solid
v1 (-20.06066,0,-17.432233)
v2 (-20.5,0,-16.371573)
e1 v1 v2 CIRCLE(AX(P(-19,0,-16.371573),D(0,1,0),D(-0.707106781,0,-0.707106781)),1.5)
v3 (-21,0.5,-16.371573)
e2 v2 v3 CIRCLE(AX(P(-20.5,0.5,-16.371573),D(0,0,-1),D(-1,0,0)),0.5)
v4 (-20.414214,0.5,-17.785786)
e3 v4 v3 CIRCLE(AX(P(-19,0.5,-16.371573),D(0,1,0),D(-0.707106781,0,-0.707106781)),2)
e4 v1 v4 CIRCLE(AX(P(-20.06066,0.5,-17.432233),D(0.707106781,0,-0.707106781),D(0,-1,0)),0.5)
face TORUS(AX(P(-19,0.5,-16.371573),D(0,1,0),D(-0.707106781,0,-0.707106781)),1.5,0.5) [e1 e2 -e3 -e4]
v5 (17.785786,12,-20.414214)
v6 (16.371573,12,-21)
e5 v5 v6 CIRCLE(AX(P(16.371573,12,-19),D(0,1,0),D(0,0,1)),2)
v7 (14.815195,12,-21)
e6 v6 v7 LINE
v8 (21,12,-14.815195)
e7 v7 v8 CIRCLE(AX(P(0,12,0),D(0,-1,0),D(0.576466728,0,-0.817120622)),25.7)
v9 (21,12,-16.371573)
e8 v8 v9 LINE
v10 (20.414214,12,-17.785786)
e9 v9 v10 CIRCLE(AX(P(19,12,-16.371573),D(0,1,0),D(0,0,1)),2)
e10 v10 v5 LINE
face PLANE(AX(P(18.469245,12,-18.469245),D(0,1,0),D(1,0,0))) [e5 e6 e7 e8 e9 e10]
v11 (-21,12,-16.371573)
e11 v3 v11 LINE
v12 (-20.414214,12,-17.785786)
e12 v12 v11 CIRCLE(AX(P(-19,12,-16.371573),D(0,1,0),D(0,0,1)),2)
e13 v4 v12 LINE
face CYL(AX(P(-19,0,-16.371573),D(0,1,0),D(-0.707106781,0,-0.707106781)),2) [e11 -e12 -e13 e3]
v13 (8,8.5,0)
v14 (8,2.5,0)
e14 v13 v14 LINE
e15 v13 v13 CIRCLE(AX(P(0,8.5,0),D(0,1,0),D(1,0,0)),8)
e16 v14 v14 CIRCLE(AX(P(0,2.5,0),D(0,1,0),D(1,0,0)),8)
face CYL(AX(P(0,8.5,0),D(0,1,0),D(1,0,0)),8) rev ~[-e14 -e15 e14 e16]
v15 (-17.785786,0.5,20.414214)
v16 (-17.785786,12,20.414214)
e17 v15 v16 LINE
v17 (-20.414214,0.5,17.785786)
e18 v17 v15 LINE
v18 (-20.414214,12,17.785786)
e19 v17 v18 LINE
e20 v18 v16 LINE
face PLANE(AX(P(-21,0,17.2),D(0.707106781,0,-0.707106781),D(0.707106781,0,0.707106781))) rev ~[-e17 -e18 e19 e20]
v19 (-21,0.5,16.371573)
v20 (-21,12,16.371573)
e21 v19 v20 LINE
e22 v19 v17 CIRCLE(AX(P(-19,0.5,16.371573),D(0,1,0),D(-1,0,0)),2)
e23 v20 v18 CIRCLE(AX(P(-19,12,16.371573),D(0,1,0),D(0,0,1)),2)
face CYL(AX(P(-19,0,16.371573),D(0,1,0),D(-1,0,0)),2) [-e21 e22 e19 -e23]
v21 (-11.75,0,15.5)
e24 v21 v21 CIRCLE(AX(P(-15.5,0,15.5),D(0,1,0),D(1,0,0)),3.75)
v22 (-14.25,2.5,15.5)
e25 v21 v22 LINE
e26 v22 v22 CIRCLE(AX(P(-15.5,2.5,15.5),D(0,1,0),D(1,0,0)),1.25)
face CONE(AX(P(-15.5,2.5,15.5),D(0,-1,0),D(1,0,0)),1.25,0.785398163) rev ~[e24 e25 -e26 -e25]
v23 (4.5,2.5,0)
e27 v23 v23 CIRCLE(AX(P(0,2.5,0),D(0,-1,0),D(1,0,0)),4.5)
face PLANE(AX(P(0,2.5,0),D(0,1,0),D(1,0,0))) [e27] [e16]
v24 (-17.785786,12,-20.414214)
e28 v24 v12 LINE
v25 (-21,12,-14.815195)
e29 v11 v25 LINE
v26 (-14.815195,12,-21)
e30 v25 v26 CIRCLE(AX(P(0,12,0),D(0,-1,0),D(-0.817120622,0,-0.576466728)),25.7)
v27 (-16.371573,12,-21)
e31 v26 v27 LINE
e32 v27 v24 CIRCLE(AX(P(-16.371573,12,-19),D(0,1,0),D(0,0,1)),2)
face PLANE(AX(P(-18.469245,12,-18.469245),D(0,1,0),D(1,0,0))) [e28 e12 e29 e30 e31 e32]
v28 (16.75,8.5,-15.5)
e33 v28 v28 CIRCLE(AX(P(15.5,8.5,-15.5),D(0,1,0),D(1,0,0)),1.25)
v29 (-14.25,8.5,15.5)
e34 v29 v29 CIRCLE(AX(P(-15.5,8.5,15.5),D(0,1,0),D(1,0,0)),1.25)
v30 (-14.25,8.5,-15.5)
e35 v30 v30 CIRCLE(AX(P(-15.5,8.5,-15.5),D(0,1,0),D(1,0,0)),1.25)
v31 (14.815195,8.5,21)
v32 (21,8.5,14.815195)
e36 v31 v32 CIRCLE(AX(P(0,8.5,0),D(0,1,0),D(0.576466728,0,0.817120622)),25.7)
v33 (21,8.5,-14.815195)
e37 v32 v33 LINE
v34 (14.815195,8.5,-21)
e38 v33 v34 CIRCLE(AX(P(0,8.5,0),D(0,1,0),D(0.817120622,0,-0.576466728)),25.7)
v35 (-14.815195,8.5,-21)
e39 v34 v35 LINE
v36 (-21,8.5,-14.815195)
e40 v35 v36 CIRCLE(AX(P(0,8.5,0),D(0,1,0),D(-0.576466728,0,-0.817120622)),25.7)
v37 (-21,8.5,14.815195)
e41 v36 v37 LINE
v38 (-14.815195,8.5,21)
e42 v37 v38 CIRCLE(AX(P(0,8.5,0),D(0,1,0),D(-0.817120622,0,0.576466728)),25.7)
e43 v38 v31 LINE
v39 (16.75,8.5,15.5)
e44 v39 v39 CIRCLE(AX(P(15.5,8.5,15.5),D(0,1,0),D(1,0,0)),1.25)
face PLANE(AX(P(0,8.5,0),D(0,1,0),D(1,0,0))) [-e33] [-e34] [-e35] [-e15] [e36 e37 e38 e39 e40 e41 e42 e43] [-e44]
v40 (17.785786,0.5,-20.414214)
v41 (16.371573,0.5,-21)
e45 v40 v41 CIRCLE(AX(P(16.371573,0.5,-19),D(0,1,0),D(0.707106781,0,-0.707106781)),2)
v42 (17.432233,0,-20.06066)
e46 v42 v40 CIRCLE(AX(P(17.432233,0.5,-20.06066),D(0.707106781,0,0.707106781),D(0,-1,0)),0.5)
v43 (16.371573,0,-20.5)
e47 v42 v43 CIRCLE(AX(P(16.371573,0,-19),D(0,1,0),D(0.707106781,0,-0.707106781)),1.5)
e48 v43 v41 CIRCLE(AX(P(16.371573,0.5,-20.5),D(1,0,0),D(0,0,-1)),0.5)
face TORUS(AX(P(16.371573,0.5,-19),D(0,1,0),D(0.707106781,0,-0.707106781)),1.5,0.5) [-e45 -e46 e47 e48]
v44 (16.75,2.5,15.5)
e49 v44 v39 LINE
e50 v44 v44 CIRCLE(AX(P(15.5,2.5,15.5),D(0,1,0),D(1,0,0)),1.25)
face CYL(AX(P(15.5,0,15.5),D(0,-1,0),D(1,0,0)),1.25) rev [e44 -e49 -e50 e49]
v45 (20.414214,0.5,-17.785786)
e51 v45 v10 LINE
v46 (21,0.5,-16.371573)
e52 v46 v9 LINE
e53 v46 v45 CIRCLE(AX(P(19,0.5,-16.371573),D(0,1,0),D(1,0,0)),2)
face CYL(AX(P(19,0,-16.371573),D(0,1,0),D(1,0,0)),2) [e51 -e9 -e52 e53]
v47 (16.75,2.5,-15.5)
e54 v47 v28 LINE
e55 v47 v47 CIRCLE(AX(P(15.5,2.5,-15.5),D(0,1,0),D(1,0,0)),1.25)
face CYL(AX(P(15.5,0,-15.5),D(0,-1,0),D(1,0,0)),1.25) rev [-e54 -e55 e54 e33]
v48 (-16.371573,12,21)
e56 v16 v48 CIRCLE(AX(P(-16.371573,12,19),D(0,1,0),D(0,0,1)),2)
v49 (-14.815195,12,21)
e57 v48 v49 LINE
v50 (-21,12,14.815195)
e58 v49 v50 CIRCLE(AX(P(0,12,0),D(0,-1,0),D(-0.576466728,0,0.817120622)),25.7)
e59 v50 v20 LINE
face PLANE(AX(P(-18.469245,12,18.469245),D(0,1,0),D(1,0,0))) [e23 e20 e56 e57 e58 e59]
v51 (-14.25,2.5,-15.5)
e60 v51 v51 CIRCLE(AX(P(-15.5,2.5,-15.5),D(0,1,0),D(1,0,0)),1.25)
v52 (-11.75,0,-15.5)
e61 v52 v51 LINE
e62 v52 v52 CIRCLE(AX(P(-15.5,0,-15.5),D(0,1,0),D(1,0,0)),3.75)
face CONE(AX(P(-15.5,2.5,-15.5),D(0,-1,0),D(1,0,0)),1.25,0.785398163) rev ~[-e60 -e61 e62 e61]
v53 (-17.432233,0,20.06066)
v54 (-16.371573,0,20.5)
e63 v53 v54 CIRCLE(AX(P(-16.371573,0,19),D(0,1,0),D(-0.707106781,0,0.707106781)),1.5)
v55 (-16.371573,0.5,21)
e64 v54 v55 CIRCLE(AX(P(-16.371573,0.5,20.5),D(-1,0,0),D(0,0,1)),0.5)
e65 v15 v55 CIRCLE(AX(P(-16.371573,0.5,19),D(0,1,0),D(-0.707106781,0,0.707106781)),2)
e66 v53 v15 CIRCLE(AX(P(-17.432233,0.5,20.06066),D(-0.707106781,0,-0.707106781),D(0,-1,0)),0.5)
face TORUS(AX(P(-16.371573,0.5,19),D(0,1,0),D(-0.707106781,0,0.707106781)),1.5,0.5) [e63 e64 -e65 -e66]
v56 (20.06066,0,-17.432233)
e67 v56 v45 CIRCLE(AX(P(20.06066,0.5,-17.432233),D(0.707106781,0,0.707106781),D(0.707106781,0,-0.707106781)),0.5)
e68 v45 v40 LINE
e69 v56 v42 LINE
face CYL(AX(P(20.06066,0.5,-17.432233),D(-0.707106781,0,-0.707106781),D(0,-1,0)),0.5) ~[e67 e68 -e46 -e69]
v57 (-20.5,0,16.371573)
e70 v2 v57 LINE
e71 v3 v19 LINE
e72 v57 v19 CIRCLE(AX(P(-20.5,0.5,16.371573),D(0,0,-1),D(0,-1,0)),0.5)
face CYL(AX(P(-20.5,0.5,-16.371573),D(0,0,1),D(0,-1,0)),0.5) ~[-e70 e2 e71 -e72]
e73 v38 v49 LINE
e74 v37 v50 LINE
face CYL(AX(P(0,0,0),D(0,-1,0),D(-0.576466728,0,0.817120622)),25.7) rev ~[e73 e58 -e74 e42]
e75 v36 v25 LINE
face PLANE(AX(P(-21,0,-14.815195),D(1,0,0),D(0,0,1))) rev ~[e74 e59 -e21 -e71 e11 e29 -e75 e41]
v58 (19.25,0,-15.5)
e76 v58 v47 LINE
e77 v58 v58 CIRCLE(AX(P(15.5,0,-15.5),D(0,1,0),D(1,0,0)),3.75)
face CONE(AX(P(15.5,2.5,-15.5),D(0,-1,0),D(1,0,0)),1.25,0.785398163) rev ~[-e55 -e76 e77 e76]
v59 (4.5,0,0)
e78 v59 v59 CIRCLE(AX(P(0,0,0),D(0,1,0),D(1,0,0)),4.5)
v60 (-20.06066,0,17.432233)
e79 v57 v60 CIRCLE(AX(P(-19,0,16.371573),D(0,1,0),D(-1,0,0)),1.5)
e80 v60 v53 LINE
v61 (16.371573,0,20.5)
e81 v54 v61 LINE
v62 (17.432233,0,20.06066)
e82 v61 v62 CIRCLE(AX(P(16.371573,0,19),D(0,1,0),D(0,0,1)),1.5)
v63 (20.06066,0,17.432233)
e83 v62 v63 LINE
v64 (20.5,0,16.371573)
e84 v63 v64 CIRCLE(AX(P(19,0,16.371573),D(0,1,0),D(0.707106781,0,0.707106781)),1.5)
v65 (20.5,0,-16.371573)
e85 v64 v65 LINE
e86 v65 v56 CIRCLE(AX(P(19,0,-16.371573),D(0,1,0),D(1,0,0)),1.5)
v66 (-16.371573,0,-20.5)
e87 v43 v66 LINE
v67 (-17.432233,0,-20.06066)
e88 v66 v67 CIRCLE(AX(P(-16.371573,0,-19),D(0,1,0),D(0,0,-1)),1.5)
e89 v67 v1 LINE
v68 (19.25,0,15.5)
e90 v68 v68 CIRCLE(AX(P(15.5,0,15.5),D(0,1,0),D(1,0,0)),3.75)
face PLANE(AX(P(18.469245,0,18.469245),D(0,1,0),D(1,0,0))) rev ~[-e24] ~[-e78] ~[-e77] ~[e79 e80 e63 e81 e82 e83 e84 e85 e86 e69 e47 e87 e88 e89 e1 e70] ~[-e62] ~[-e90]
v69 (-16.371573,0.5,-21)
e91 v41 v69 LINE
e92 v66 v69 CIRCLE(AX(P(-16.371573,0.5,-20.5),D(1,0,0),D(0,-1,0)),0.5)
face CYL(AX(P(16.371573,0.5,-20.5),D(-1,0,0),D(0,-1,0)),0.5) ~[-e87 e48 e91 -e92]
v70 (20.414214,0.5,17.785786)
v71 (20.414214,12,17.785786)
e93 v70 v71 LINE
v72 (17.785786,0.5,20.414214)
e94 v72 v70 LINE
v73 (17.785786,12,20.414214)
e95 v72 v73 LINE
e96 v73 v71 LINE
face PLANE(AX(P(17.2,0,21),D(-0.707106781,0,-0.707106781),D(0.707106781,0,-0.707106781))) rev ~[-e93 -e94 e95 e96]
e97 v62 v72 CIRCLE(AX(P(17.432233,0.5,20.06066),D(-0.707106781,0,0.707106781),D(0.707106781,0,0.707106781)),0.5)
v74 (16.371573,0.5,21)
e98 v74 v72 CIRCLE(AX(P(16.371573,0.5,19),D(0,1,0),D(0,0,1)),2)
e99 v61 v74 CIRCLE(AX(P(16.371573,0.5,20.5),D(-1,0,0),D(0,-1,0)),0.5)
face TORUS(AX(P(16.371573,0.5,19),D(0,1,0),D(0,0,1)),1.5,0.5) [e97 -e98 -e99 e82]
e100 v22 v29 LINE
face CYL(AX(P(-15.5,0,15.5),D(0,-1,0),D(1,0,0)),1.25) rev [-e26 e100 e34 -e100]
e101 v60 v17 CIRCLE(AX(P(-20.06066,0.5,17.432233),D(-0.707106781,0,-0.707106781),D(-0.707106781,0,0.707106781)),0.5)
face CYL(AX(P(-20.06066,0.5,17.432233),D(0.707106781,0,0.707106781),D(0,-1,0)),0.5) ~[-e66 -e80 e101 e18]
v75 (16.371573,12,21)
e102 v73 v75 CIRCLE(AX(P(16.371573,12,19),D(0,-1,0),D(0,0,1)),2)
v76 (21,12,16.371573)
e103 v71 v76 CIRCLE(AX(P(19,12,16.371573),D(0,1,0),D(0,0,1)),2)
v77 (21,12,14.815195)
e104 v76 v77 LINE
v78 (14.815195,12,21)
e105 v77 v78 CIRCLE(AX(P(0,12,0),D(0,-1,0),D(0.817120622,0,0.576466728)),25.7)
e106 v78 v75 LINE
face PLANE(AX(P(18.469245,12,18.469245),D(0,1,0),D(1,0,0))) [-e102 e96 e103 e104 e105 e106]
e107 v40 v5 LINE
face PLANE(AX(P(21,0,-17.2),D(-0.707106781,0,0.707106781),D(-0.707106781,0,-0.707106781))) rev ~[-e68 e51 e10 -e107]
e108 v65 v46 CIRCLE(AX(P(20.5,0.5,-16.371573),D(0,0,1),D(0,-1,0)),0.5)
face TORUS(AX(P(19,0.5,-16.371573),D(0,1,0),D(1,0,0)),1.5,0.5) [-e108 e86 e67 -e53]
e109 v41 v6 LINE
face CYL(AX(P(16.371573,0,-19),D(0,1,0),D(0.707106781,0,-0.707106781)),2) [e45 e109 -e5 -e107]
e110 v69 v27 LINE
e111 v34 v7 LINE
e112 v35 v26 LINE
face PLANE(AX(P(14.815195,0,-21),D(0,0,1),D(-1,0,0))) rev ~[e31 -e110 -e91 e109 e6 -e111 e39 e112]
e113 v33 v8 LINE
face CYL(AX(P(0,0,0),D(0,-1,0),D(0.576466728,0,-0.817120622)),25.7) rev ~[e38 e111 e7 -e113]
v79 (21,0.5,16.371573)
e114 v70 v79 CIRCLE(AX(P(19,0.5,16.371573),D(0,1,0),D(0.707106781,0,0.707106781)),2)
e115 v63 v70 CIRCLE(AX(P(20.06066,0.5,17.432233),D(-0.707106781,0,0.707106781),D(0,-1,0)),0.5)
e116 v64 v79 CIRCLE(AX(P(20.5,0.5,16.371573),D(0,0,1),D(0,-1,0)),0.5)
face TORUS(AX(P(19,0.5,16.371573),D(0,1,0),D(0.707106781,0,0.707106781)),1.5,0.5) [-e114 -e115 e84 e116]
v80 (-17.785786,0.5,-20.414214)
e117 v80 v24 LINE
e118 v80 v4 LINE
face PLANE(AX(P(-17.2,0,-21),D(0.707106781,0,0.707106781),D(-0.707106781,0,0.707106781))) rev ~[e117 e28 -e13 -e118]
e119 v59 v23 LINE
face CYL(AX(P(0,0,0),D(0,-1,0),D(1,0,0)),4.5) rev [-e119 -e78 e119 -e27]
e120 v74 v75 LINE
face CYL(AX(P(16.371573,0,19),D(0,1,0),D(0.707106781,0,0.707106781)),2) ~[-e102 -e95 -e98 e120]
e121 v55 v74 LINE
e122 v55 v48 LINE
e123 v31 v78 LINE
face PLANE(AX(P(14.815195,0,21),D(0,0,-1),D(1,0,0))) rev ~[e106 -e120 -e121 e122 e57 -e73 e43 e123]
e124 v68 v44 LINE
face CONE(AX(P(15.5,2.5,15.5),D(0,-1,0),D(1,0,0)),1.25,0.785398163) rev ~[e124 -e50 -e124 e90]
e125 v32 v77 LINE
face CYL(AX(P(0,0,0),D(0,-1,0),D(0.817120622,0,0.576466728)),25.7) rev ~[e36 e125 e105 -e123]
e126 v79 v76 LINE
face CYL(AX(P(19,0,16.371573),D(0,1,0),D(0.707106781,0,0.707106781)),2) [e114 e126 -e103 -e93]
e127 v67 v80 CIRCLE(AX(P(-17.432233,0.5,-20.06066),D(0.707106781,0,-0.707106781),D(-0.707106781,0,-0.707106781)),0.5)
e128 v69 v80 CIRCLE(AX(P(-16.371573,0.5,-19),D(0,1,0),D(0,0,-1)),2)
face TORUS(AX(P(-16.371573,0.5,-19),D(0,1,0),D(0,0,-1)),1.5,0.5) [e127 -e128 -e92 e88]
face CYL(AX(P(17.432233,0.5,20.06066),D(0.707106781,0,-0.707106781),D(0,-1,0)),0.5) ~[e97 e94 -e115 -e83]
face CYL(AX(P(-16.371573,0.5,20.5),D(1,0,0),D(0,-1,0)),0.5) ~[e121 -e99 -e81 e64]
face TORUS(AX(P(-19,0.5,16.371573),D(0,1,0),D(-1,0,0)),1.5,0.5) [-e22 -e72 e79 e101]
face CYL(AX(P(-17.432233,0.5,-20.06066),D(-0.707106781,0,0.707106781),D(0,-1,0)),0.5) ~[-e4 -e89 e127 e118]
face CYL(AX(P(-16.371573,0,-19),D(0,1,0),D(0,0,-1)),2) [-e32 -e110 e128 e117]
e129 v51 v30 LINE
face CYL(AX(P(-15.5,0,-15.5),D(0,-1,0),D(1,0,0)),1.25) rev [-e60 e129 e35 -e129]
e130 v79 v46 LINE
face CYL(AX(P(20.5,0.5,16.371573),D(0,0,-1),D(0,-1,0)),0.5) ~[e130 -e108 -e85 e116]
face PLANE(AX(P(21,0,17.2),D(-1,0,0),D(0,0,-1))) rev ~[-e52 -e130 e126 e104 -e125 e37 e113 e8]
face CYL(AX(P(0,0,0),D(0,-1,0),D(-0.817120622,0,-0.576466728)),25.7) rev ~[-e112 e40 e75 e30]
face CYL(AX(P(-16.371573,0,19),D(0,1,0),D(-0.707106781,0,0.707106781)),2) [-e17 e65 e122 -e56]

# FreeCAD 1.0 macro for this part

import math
import FreeCAD as App
import Part
import Sketcher

V = App.Vector
Q = App.Units.Quantity


def edges_at(feature, points):
    """Names of the edges that pass closest to the given points."""
    edges = feature.Shape.Edges
    near = lambda p: min(range(len(edges)), key=lambda i: edges[i].distToShape(Part.Vertex(*p))[0])
    return sorted({f"Edge{near(p) + 1}" for p in points})

doc = App.newDocument("Part")
params = doc.addObject("Spreadsheet::Sheet", "Params")
for row, (alias, value) in enumerate([
    ("sketch1_diameter", "9 mm"),
    ("sketch1_diameter2", "2.5 mm"),
    ("sketch1_radius", "25.7 mm"),
    ("pad1_length", "8.5 mm"),
    ("sketch2_radius", "25.7 mm"),
    ("pad2_length", "12 mm"),
    ("chamfer_size", "2.5 mm"),
    ("sketch3_diameter", "16 mm"),
    ("pocket1_length", "6 mm"),
    ("fillet_radius", "2 mm"),
    ("fillet2_radius", "0.5 mm"),
], start=1):
    params.set(f"A{row}", alias)
    params.set(f"B{row}", "=" + value)
    params.setAlias(f"B{row}", alias)

body = doc.addObject("PartDesign::Body", "Body")

sketch1 = body.newObject("Sketcher::SketchObject", "Sketch")
sketch1.AttachmentSupport = (doc.getObject("XZ_Plane"), [""])
sketch1.MapMode = "FlatFace"
sketch1.addGeometry([
    Part.ArcOfCircle(Part.Circle(V(0, 0, 0), V(0, 0, 1), 25.7), math.radians(-144.797587), math.radians(-125.202413)),
    Part.LineSegment(V(-21, -14.815195, 0), V(-21, 14.815195, 0)),
    Part.ArcOfCircle(Part.Circle(V(0, 0, 0), V(0, 0, 1), 25.7), math.radians(125.202413), math.radians(144.797587)),
    Part.LineSegment(V(-14.815195, 21, 0), V(14.815195, 21, 0)),
    Part.ArcOfCircle(Part.Circle(V(0, 0, 0), V(0, 0, 1), 25.7), math.radians(35.202413), math.radians(54.797587)),
    Part.LineSegment(V(21, 14.815195, 0), V(21, -14.815195, 0)),
    Part.ArcOfCircle(Part.Circle(V(0, 0, 0), V(0, 0, 1), 25.7), math.radians(-54.797587), math.radians(-35.202413)),
    Part.LineSegment(V(14.815195, -21, 0), V(-14.815195, -21, 0)),
    Part.Circle(V(-15.5, 15.5, 0), V(0, 0, 1), 1.25),
    Part.Circle(V(15.5, 15.5, 0), V(0, 0, 1), 1.25),
    Part.Circle(V(-15.5, -15.5, 0), V(0, 0, 1), 1.25),
    Part.Circle(V(0, 0, 0), V(0, 0, 1), 4.5),
    Part.Circle(V(15.5, -15.5, 0), V(0, 0, 1), 1.25),
], False)
sketch1.addConstraint([
    Sketcher.Constraint("Coincident", 0, 1, 1, 1),
    Sketcher.Constraint("Coincident", 1, 2, 2, 2),
    Sketcher.Constraint("Coincident", 2, 1, 3, 1),
    Sketcher.Constraint("Coincident", 3, 2, 4, 2),
    Sketcher.Constraint("Coincident", 4, 1, 5, 1),
    Sketcher.Constraint("Coincident", 5, 2, 6, 2),
    Sketcher.Constraint("Coincident", 6, 1, 7, 1),
    Sketcher.Constraint("Coincident", 7, 2, 0, 2),
    Sketcher.Constraint("Vertical", 1),
    Sketcher.Constraint("Horizontal", 3),
    Sketcher.Constraint("Vertical", 5),
    Sketcher.Constraint("Horizontal", 7),
    Sketcher.Constraint("Coincident", 0, 3, -1, 1),
    Sketcher.Constraint("Coincident", 2, 3, -1, 1),
    Sketcher.Constraint("Coincident", 4, 3, -1, 1),
    Sketcher.Constraint("Coincident", 6, 3, -1, 1),
    Sketcher.Constraint("Coincident", 11, 3, -1, 1),
    Sketcher.Constraint("Equal", 0, 2),
    Sketcher.Constraint("Equal", 2, 4),
    Sketcher.Constraint("Equal", 4, 6),
    Sketcher.Constraint("Equal", 8, 9),
    Sketcher.Constraint("Equal", 9, 10),
    Sketcher.Constraint("Equal", 10, 12),
    Sketcher.Constraint("Symmetric", 9, 3, 10, 3, -1, 1),
    Sketcher.Constraint("Symmetric", 8, 3, 12, 3, -1, 1),
    Sketcher.Constraint("Symmetric", 8, 3, 9, 3, -2),
    Sketcher.Constraint("Horizontal", 1, 2, 4, 1),
    Sketcher.Constraint("Vertical", 3, 2, 6, 1),
    Sketcher.Constraint("Equal", 7, 1),
    Sketcher.Constraint("Diameter", 11, Q("9 mm")),
    Sketcher.Constraint("Diameter", 8, Q("2.5 mm")),
    Sketcher.Constraint("Radius", 0, Q("25.7 mm")),
    Sketcher.Constraint("DistanceX", 0, 1, -1, 1, Q("21 mm")),
    Sketcher.Constraint("DistanceX", 8, 3, 9, 3, Q("31 mm")),
    Sketcher.Constraint("DistanceY", 10, 3, 8, 3, Q("31 mm")),
])
sketch1.setExpression("Constraints[29]", "Params.sketch1_diameter")
sketch1.setExpression("Constraints[30]", "Params.sketch1_diameter2")
sketch1.setExpression("Constraints[31]", "Params.sketch1_radius")
pad1 = body.newObject("PartDesign::Pad", "Pad")
pad1.Profile = sketch1
pad1.setExpression("Length", "Params.pad1_length")
pad1.Reversed = True

sketch2 = body.newObject("Sketcher::SketchObject", "Sketch001")
sketch2.AttachmentSupport = (doc.getObject("XZ_Plane"), [""])
sketch2.MapMode = "FlatFace"
sketch2.addGeometry([
    Part.ArcOfCircle(Part.Circle(V(0, 0, 0), V(0, 0, 1), 25.7), math.radians(35.202413), math.radians(54.797587)),
    Part.LineSegment(V(14.815195, 21, 0), V(17.2, 21, 0)),
    Part.LineSegment(V(17.2, 21, 0), V(21, 17.2, 0)),
    Part.LineSegment(V(21, 17.2, 0), V(21, 14.815195, 0)),
    Part.ArcOfCircle(Part.Circle(V(0, 0, 0), V(0, 0, 1), 25.7), math.radians(125.202413), math.radians(144.797587)),
    Part.LineSegment(V(-21, 14.815195, 0), V(-21, 17.2, 0)),
    Part.LineSegment(V(-21, 17.2, 0), V(-17.2, 21, 0)),
    Part.LineSegment(V(-17.2, 21, 0), V(-14.815195, 21, 0)),
    Part.LineSegment(V(-17.2, -21, 0), V(-21, -17.2, 0)),
    Part.LineSegment(V(-21, -17.2, 0), V(-21, -14.815195, 0)),
    Part.ArcOfCircle(Part.Circle(V(0, 0, 0), V(0, 0, 1), 25.7), math.radians(-144.797587), math.radians(-125.202413)),
    Part.LineSegment(V(-14.815195, -21, 0), V(-17.2, -21, 0)),
    Part.LineSegment(V(17.2, -21, 0), V(14.815195, -21, 0)),
    Part.ArcOfCircle(Part.Circle(V(0, 0, 0), V(0, 0, 1), 25.7), math.radians(-54.797587), math.radians(-35.202413)),
    Part.LineSegment(V(21, -14.815195, 0), V(21, -17.2, 0)),
    Part.LineSegment(V(21, -17.2, 0), V(17.2, -21, 0)),
], False)
sketch2.addConstraint([
    Sketcher.Constraint("Coincident", 0, 2, 1, 1),
    Sketcher.Constraint("Coincident", 1, 2, 2, 1),
    Sketcher.Constraint("Coincident", 2, 2, 3, 1),
    Sketcher.Constraint("Coincident", 3, 2, 0, 1),
    Sketcher.Constraint("Coincident", 4, 2, 5, 1),
    Sketcher.Constraint("Coincident", 5, 2, 6, 1),
    Sketcher.Constraint("Coincident", 6, 2, 7, 1),
    Sketcher.Constraint("Coincident", 7, 2, 4, 1),
    Sketcher.Constraint("Coincident", 8, 2, 9, 1),
    Sketcher.Constraint("Coincident", 9, 2, 10, 1),
    Sketcher.Constraint("Coincident", 10, 2, 11, 1),
    Sketcher.Constraint("Coincident", 11, 2, 8, 1),
    Sketcher.Constraint("Coincident", 12, 2, 13, 1),
    Sketcher.Constraint("Coincident", 13, 2, 14, 1),
    Sketcher.Constraint("Coincident", 14, 2, 15, 1),
    Sketcher.Constraint("Coincident", 15, 2, 12, 1),
    Sketcher.Constraint("Horizontal", 1),
    Sketcher.Constraint("Vertical", 3),
    Sketcher.Constraint("Vertical", 5),
    Sketcher.Constraint("Horizontal", 7),
    Sketcher.Constraint("Vertical", 9),
    Sketcher.Constraint("Horizontal", 11),
    Sketcher.Constraint("Horizontal", 12),
    Sketcher.Constraint("Vertical", 14),
    Sketcher.Constraint("Coincident", 0, 3, -1, 1),
    Sketcher.Constraint("Coincident", 4, 3, -1, 1),
    Sketcher.Constraint("Coincident", 10, 3, -1, 1),
    Sketcher.Constraint("Coincident", 13, 3, -1, 1),
    Sketcher.Constraint("Equal", 0, 4),
    Sketcher.Constraint("Equal", 4, 10),
    Sketcher.Constraint("Equal", 10, 13),
    Sketcher.Constraint("Symmetric", 2, 2, 8, 2, -1, 1),
    Sketcher.Constraint("Symmetric", 1, 2, 11, 2, -1, 1),
    Sketcher.Constraint("Symmetric", 5, 2, 14, 2, -1, 1),
    Sketcher.Constraint("Symmetric", 6, 2, 15, 2, -1, 1),
    Sketcher.Constraint("Symmetric", 2, 2, 5, 2, -2),
    Sketcher.Constraint("Symmetric", 1, 2, 6, 2, -2),
    Sketcher.Constraint("Perpendicular", 2, 6),
    Sketcher.Constraint("Equal", 12, 3),
    Sketcher.Constraint("Radius", 0, Q("25.7 mm")),
    Sketcher.Constraint("DistanceY", -1, 1, 0, 2, Q("21 mm")),
    Sketcher.Constraint("DistanceX", -1, 1, 1, 2, Q("17.2 mm")),
])
sketch2.setExpression("Constraints[39]", "Params.sketch2_radius")
pad2 = body.newObject("PartDesign::Pad", "Pad001")
pad2.Profile = sketch2
pad2.setExpression("Length", "Params.pad2_length")
pad2.Reversed = True
doc.recompute()

chamfer = body.newObject("PartDesign::Chamfer", "Chamfer")
chamfer.Base = (pad2, edges_at(pad2, [
    (-16.75, 0, 15.5),
    (14.25, 0, 15.5),
    (14.25, 0, -15.5),
    (-16.75, 0, -15.5),
]))
chamfer.setExpression("Size", "Params.chamfer_size")

sketch3 = body.newObject("Sketcher::SketchObject", "Sketch002")
sketch3.AttachmentSupport = (doc.getObject("XZ_Plane"), [""])
sketch3.MapMode = "FlatFace"
sketch3.AttachmentOffset = App.Placement(V(0, 0, -8.5), App.Rotation())
sketch3.addGeometry(Part.Circle(V(0, 0, 0), V(0, 0, 1), 8), False)
sketch3.addConstraint([
    Sketcher.Constraint("Coincident", 0, 3, -1, 1),
    Sketcher.Constraint("Diameter", 0, Q("16 mm")),
])
sketch3.setExpression("Constraints[1]", "Params.sketch3_diameter")
pocket1 = body.newObject("PartDesign::Pocket", "Pocket")
pocket1.Profile = sketch3
pocket1.setExpression("Length", "Params.pocket1_length")
pocket1.Reversed = True
doc.recompute()

fillet = body.newObject("PartDesign::Fillet", "Fillet")
fillet.Base = (pocket1, edges_at(pocket1, [
    (17.2, 6, 21),
    (21, 6, 17.2),
    (-21, 6, 17.2),
    (-17.2, 6, 21),
    (-17.2, 6, -21),
    (-21, 6, -17.2),
    (21, 6, -17.2),
    (17.2, 6, -21),
]))
fillet.setExpression("Radius", "Params.fillet_radius")
doc.recompute()

fillet2 = body.newObject("PartDesign::Fillet", "Fillet001")
fillet2.Base = (fillet, edges_at(fillet, [
    (21, 0, 0),
    (0, 0, 21),
    (-19.1, 0, 19.1),
    (-21, 0, 0),
    (-19.1, 0, -19.1),
    (0, 0, -21),
    (19.1, 0, -19.1),
    (19.1, 0, 19.1),
    (20.848, 0, -17.137),
    (17.137, 0, -20.848),
    (-17.137, 0, -20.848),
    (-20.848, 0, -17.137),
    (-20.848, 0, 17.137),
    (-17.137, 0, 20.848),
    (17.137, 0, 20.848),
    (20.848, 0, 17.137),
]))
fillet2.setExpression("Radius", "Params.fillet2_radius")

doc.recompute()
